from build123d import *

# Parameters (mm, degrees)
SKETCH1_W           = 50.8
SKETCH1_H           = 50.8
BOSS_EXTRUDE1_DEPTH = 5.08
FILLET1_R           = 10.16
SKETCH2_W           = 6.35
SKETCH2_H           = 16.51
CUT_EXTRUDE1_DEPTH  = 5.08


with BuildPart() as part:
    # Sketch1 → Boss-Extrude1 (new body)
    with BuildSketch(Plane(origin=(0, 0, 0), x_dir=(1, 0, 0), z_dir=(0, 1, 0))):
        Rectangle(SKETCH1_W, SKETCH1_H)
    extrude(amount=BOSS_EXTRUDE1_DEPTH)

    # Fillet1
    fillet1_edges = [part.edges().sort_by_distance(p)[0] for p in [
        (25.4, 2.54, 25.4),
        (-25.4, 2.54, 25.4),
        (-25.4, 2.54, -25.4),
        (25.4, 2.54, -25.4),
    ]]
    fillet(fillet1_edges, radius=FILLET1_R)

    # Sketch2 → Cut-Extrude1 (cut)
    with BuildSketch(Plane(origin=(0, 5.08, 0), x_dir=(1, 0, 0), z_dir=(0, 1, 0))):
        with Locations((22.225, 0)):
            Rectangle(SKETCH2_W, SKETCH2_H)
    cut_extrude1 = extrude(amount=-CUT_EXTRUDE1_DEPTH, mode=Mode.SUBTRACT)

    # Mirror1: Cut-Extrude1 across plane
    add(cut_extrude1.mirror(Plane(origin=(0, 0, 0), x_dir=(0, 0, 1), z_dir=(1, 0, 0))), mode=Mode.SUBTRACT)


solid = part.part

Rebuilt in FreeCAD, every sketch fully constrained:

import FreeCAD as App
import Part
import Sketcher
Q = App.Units.Quantity


def edges_at(feature, points):
    """Names of the edges that pass closest to the given points."""
    edges = feature.Shape.Edges
    near = lambda p: min(range(len(edges)), key=lambda i: edges[i].distToShape(Part.Vertex(*p))[0])
    return sorted({f"Edge{near(p) + 1}" for p in points})


def add_polygon(sketch, points):
    """Adds a closed chain of lines whose ends are joined by coincident constraints."""
    first, n = sketch.GeometryCount, len(points)
    for a, b in zip(points, points[1:] + points[:1]):
        sketch.addGeometry(Part.LineSegment(App.Vector(*a, 0), App.Vector(*b, 0)), False)
    for i in range(n):
        sketch.addConstraint(Sketcher.Constraint("Coincident", first + i, 2, first + (i + 1) % n, 1))

doc = App.newDocument("Part")
body = doc.addObject("PartDesign::Body", "Body")

sketch1 = body.newObject("Sketcher::SketchObject", "Sketch")
sketch1.AttachmentSupport = (doc.getObject("XZ_Plane"), [""])
sketch1.MapMode = "FlatFace"
add_polygon(sketch1, [(-25, -25), (-25, 25), (25, 25), (25, -25)])
sketch1.addConstraint([
    Sketcher.Constraint("Vertical", 0),
    Sketcher.Constraint("Horizontal", 1),
    Sketcher.Constraint("Vertical", 2),
    Sketcher.Constraint("Horizontal", 3),
    Sketcher.Constraint("Symmetric", 0, 2, 2, 2, -1, 1),
    Sketcher.Constraint("Equal", 3, 0),
    Sketcher.Constraint("DistanceX", 1, 1, 1, 2, Q("2 in")),
])
pad1 = body.newObject("PartDesign::Pad", "Pad")
pad1.Profile = sketch1
pad1.Length = Q("0.2 in")
pad1.Reversed = True
doc.recompute()

fillet = body.newObject("PartDesign::Fillet", "Fillet")
fillet.Base = (pad1, edges_at(pad1, [
    (25.4, 2.54, 25.4),
    (-25.4, 2.54, 25.4),
    (-25.4, 2.54, -25.4),
    (25.4, 2.54, -25.4),
]))
fillet.Radius = Q("0.4 in")

sketch2 = body.newObject("Sketcher::SketchObject", "Sketch001")
sketch2.AttachmentSupport = (doc.getObject("XZ_Plane"), [""])
sketch2.MapMode = "FlatFace"
sketch2.AttachmentOffset = App.Placement(App.Vector(0, 0, -0.2 * 25.4), App.Rotation())
add_polygon(sketch2, [(19, -8), (19, 8), (25, 8), (25, -8)])
sketch2.addConstraint([
    Sketcher.Constraint("Vertical", 0),
    Sketcher.Constraint("Horizontal", 1),
    Sketcher.Constraint("Vertical", 2),
    Sketcher.Constraint("Horizontal", 3),
    Sketcher.Constraint("DistanceX", -1, 1, 1, 2, Q("1 in")),
    Sketcher.Constraint("DistanceX", 1, 1, 1, 2, Q("0.25 in")),
    Sketcher.Constraint("DistanceY", 0, 1, 0, 2, Q("0.65 in")),
    Sketcher.Constraint("DistanceY", -1, 1, 0, 2, Q("0.325 in")),
])
pocket1 = body.newObject("PartDesign::Pocket", "Pocket")
pocket1.Profile = sketch2
pocket1.Length = Q("0.2 in")
pocket1.Reversed = True
doc.recompute()

mirrored = body.newObject("PartDesign::Mirrored", "Mirrored")
mirrored.Originals = [pocket1]
mirrored.MirrorPlane = (doc.getObject("YZ_Plane"), [""])
body.Tip = mirrored

doc.recompute()
